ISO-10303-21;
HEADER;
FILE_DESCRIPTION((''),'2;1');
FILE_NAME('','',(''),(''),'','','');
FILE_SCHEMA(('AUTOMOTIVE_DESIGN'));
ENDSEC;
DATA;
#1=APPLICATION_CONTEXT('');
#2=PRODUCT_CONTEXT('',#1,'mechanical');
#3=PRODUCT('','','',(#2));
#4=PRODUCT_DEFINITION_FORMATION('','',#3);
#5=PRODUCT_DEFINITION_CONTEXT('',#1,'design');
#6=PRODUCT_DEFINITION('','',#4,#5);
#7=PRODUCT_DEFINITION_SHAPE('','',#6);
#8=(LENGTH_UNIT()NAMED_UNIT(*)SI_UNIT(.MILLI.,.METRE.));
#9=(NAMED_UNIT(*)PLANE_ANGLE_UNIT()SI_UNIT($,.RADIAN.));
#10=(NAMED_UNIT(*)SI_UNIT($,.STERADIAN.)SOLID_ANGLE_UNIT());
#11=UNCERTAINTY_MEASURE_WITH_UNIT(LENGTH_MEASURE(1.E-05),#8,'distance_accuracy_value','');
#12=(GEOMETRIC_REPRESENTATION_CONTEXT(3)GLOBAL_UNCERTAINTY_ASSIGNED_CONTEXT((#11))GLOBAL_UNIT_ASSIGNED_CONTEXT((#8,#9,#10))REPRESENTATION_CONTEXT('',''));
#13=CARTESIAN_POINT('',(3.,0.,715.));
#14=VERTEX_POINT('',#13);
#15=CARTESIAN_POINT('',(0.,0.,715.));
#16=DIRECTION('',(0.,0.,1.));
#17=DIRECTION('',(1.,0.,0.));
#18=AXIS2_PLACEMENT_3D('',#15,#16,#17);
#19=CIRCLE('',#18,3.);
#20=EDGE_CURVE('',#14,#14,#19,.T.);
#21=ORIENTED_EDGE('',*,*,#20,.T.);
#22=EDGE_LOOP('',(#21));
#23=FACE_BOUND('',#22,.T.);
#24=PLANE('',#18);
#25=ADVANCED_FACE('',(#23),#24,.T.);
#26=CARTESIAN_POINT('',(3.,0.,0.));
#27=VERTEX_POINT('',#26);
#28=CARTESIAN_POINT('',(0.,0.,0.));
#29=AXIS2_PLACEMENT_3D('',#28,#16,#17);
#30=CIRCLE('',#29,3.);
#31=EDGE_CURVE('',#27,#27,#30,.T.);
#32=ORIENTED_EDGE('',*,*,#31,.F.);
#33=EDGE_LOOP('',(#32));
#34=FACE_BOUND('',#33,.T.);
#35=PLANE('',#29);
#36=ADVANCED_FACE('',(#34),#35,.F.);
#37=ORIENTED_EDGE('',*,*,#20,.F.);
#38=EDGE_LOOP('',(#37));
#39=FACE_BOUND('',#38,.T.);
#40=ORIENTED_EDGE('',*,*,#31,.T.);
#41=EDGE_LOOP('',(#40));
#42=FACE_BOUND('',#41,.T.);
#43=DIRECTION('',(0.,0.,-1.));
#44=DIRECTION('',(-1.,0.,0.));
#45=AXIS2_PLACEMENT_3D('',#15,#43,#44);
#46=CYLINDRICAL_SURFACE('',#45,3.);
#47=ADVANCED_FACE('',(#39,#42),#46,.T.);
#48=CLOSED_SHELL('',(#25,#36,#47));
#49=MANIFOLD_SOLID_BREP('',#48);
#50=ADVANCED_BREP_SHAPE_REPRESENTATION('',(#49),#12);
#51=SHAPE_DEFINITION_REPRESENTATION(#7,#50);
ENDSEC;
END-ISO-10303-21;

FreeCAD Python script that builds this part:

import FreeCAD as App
import Part
import Sketcher

doc = App.newDocument("Part")
params = doc.addObject("Spreadsheet::Sheet", "Params")
for row, (alias, value) in enumerate([
    ("sketch1_diameter", "6 mm"),
    ("pad1_length", "715 mm"),
], start=1):
    params.set(f"A{row}", alias)
    params.set(f"B{row}", "=" + value)
    params.setAlias(f"B{row}", alias)

body = doc.addObject("PartDesign::Body", "Body")

sketch1 = doc.addObject("Sketcher::SketchObject", "Sketch")
body.addObject(sketch1)
sketch1.AttachmentSupport = (doc.XY_Plane, [""])
sketch1.MapMode = "FlatFace"
sketch1.addGeometry(Part.Circle(App.Vector(0, 0, 0), App.Vector(0, 0, 1), 3), False)
sketch1.addConstraint(Sketcher.Constraint("Coincident", 0, 3, -1, 1))
sketch1.addConstraint(Sketcher.Constraint("Diameter", 0, 6.0))
sketch1.setExpression("Constraints[1]", "Params.sketch1_diameter")
pad1 = doc.addObject("PartDesign::Pad", "Pad")
body.addObject(pad1)
pad1.Profile = sketch1
pad1.setExpression("Length", "Params.pad1_length")

doc.recompute()
